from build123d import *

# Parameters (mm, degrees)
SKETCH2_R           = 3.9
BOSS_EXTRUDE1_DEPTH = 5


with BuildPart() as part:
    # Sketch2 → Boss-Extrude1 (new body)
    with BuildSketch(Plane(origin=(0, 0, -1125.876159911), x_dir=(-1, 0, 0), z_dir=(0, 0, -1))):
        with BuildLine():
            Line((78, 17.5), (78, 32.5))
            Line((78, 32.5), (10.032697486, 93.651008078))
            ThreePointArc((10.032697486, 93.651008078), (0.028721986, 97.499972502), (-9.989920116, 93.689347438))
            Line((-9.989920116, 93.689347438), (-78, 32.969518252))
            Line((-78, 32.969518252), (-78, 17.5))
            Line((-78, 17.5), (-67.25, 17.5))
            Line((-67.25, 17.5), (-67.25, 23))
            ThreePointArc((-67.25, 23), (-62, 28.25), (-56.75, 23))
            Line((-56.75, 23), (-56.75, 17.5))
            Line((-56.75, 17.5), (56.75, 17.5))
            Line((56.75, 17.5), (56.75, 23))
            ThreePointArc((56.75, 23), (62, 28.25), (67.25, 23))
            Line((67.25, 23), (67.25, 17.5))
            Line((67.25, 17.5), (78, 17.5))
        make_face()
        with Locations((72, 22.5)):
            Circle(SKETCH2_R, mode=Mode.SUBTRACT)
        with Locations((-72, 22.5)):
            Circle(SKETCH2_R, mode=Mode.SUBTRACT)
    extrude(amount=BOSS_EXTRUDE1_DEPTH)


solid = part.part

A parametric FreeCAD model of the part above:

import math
import FreeCAD as App
import Part
import Sketcher

V = App.Vector
Q = App.Units.Quantity

doc = App.newDocument("Part")
params = doc.addObject("Spreadsheet::Sheet", "Params")
for row, (alias, value) in enumerate([
    ("sketch1_radius", "15 mm"),
    ("sketch1_diameter", "7.8 mm"),
    ("sketch1_height", "15 mm"),
    ("sketch1_radius2", "5.25 mm"),
    ("sketch1_width", "113.5 mm"),
    ("pad1_length", "5 mm"),
], start=1):
    params.set(f"A{row}", alias)
    params.set(f"B{row}", "=" + value)
    params.setAlias(f"B{row}", alias)

body = doc.addObject("PartDesign::Body", "Body")

sketch1 = body.newObject("Sketcher::SketchObject", "Sketch")
sketch1.AttachmentSupport = (doc.getObject("XY_Plane"), [""])
sketch1.MapMode = "FlatFace"
sketch1.AttachmentOffset = App.Placement(V(0, 0, -1125.87616), App.Rotation())
sketch1.addGeometry([
    Part.LineSegment(V(-78, 17.5, 0), V(-78, 32.5, 0)),
    Part.LineSegment(V(-78, 32.5, 0), V(-10, 93.7, 0)),
    Part.ArcOfCircle(Part.Circle(V(0, 82.5, 0), V(0, 0, 1), 15), math.radians(48), math.radians(132)),
    Part.LineSegment(V(10, 93.7, 0), V(78, 33, 0)),
    Part.LineSegment(V(78, 33, 0), V(78, 17.5, 0)),
    Part.LineSegment(V(78, 17.5, 0), V(67.2, 17.5, 0)),
    Part.LineSegment(V(67.2, 17.5, 0), V(67.2, 23, 0)),
    Part.ArcOfCircle(Part.Circle(V(62, 23, 0), V(0, 0, 1), 5.2), math.radians(0), math.radians(180)),
    Part.LineSegment(V(56.8, 23, 0), V(56.8, 17.5, 0)),
    Part.LineSegment(V(56.8, 17.5, 0), V(-56.8, 17.5, 0)),
    Part.LineSegment(V(-56.8, 17.5, 0), V(-56.8, 23, 0)),
    Part.ArcOfCircle(Part.Circle(V(-62, 23, 0), V(0, 0, 1), 5.2), math.radians(0), math.radians(180)),
    Part.LineSegment(V(-67.2, 23, 0), V(-67.2, 17.5, 0)),
    Part.LineSegment(V(-67.2, 17.5, 0), V(-78, 17.5, 0)),
    Part.Circle(V(72, 22.5, 0), V(0, 0, 1), 3.9),
    Part.Circle(V(-72, 22.5, 0), V(0, 0, 1), 3.9),
], False)
sketch1.addConstraint([
    Sketcher.Constraint("Coincident", 0, 2, 1, 1),
    Sketcher.Constraint("Tangent", 1, 2, 2, 2),
    Sketcher.Constraint("Tangent", 2, 1, 3, 1),
    Sketcher.Constraint("Coincident", 3, 2, 4, 1),
    Sketcher.Constraint("Coincident", 4, 2, 5, 1),
    Sketcher.Constraint("Coincident", 5, 2, 6, 1),
    Sketcher.Constraint("Tangent", 6, 2, 7, 1),
    Sketcher.Constraint("Tangent", 7, 2, 8, 1),
    Sketcher.Constraint("Coincident", 8, 2, 9, 1),
    Sketcher.Constraint("Coincident", 9, 2, 10, 1),
    Sketcher.Constraint("Tangent", 10, 2, 11, 1),
    Sketcher.Constraint("Tangent", 11, 2, 12, 1),
    Sketcher.Constraint("Coincident", 12, 2, 13, 1),
    Sketcher.Constraint("Coincident", 13, 2, 0, 1),
    Sketcher.Constraint("Vertical", 0),
    Sketcher.Constraint("Vertical", 4),
    Sketcher.Constraint("Horizontal", 5),
    Sketcher.Constraint("Vertical", 6),
    Sketcher.Constraint("Vertical", 8),
    Sketcher.Constraint("Horizontal", 9),
    Sketcher.Constraint("Vertical", 10),
    Sketcher.Constraint("Vertical", 12),
    Sketcher.Constraint("Horizontal", 13),
    Sketcher.Constraint("Equal", 7, 11),
    Sketcher.Constraint("Equal", 14, 15),
    Sketcher.Constraint("Symmetric", 7, 3, 11, 3, -2),
    Sketcher.Constraint("Symmetric", 14, 3, 15, 3, -2),
    Sketcher.Constraint("Symmetric", 4, 2, 13, 2, -2),
    Sketcher.Constraint("PointOnObject", 2, 3, -2),
    Sketcher.Constraint("Horizontal", 5, 2, 8, 2),
    Sketcher.Constraint("Radius", 2, Q("15 mm")),
    Sketcher.Constraint("Diameter", 14, Q("7.8 mm")),
    Sketcher.Constraint("DistanceY", 0, 1, 0, 2, Q("15 mm")),
    Sketcher.Constraint("Radius", 7, Q("5.25 mm")),
    Sketcher.Constraint("DistanceX", 9, 2, 9, 1, Q("113.5 mm")),
    Sketcher.Constraint("DistanceY", 6, 1, 6, 2, Q("5.5 mm")),
    Sketcher.Constraint("DistanceY", -1, 1, 7, 3, Q("23 mm")),
    Sketcher.Constraint("DistanceX", -1, 1, 14, 3, Q("72 mm")),
    Sketcher.Constraint("DistanceX", 0, 2, -1, 1, Q("78 mm")),
    Sketcher.Constraint("DistanceY", 14, 3, 2, 3, Q("60 mm")),
    Sketcher.Constraint("DistanceY", 15, 3, 0, 2, Q("10 mm")),
    Sketcher.Constraint("DistanceY", 4, 2, 4, 1, Q("15.469518 mm")),
])
sketch1.setExpression("Constraints[30]", "Params.sketch1_radius")
sketch1.setExpression("Constraints[31]", "Params.sketch1_diameter")
sketch1.setExpression("Constraints[32]", "Params.sketch1_height")
sketch1.setExpression("Constraints[33]", "Params.sketch1_radius2")
sketch1.setExpression("Constraints[34]", "Params.sketch1_width")
pad1 = body.newObject("PartDesign::Pad", "Pad")
pad1.Profile = sketch1
pad1.setExpression("Length", "Params.pad1_length")
pad1.Reversed = True

doc.recompute()
